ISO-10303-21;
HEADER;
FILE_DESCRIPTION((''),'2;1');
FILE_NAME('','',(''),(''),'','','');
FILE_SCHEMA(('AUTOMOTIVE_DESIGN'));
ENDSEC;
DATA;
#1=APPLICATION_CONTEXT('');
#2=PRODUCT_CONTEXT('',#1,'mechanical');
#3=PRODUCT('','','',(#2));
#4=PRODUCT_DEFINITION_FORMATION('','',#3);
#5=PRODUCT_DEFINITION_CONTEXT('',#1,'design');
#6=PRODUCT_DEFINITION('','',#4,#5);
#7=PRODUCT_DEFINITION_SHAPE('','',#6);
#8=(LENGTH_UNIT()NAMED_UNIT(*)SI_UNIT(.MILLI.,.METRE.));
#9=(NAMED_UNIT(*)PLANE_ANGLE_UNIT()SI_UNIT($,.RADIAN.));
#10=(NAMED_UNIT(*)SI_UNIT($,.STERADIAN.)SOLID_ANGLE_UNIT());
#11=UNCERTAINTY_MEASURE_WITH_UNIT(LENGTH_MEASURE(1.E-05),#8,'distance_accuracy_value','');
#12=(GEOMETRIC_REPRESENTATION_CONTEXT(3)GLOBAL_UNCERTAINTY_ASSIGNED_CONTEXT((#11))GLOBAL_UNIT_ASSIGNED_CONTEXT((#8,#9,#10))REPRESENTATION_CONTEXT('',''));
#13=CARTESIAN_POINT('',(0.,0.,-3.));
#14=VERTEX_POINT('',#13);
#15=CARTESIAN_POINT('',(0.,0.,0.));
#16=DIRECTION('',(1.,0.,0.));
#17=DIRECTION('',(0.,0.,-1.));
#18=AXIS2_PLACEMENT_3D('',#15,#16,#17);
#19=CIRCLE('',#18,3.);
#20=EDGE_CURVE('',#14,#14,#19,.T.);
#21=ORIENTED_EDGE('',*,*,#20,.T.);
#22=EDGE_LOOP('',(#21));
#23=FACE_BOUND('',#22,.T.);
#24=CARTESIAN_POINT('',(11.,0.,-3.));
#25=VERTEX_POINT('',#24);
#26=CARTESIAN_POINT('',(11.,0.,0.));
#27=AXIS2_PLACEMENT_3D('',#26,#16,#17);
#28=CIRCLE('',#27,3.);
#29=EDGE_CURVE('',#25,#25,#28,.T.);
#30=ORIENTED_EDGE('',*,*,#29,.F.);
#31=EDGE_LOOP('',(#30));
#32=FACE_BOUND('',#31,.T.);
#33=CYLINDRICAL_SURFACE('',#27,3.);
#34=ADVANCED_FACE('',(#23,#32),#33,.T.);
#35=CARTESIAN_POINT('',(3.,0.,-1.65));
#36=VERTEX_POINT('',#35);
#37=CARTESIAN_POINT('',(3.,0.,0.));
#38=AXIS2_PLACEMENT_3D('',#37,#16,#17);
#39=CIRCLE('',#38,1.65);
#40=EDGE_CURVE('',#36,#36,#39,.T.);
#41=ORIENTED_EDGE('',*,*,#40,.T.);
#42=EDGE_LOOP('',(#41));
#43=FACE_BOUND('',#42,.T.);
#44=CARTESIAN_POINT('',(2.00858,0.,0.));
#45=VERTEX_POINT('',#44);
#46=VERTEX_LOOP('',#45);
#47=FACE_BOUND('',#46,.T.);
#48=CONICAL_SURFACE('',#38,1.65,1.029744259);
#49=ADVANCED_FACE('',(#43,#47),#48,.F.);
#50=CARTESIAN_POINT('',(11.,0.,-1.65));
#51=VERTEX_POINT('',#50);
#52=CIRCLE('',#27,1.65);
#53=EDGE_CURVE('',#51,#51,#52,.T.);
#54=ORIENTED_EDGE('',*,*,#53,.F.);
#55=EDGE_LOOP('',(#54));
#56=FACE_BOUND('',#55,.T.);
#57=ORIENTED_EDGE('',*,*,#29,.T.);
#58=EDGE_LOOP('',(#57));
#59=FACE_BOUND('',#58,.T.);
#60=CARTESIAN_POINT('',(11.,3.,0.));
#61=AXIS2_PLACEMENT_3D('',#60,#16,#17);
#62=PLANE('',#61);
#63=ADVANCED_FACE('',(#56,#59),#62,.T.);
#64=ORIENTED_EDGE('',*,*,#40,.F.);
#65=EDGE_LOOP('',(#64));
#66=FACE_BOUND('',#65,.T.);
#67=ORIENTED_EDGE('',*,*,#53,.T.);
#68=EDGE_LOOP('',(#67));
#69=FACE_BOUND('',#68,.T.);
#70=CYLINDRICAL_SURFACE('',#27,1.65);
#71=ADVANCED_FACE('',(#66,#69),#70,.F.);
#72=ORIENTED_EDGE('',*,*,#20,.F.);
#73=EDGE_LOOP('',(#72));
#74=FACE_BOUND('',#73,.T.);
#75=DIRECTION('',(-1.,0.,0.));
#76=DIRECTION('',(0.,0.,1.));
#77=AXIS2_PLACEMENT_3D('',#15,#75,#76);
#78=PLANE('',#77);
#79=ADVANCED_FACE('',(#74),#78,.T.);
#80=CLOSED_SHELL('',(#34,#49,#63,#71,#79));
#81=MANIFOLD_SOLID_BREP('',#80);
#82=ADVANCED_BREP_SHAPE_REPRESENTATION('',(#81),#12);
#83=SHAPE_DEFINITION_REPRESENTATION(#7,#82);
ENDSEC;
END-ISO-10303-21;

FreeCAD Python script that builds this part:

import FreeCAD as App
import Part
import Sketcher
from FreeCAD import Vector
Q = App.Units.Quantity


def add_polygon(sketch, points):
    """Adds a closed chain of lines whose ends are joined by coincident constraints."""
    first, n = sketch.GeometryCount, len(points)
    for a, b in zip(points, points[1:] + points[:1]):
        sketch.addGeometry(Part.LineSegment(App.Vector(*a, 0), App.Vector(*b, 0)), False)
    for i in range(n):
        sketch.addConstraint(Sketcher.Constraint("Coincident", first + i, 2, first + (i + 1) % n, 1))

doc = App.newDocument("Part")
body = doc.addObject("PartDesign::Body", "Body")

# Sketch on XY plane
sketch1 = body.newObject("Sketcher::SketchObject", "Sketch")
sketch1.AttachmentSupport = (doc.getObject("XY_Plane"), [""])
sketch1.MapMode = "FlatFace"
add_polygon(sketch1, [(0, 3), (0, 0), (11, 0), (11, 3)])  # lines 0-3
sketch1.addConstraint([
    Sketcher.Constraint("Vertical", 0),
    Sketcher.Constraint("Horizontal", 1),
    Sketcher.Constraint("Vertical", 2),
    Sketcher.Constraint("Horizontal", 3),
    Sketcher.Constraint("Coincident", 0, 2, -1, 1),
    Sketcher.Constraint("DistanceX", 1, 1, 1, 2, Q("11 mm")),
    Sketcher.Constraint("DistanceY", 0, 2, 0, 1, Q("3 mm")),
])
revolution = body.newObject("PartDesign::Revolution", "Revolution")
revolution.Profile = sketch1
revolution.ReferenceAxis = (sketch1, ["H_Axis"])
revolution.Angle = 360

# Sketch on YZ plane
sketch2 = body.newObject("Sketcher::SketchObject", "Sketch001")
sketch2.AttachmentSupport = (doc.getObject("YZ_Plane"), [""])
sketch2.MapMode = "FlatFace"
sketch2.AttachmentOffset = App.Placement(Vector(0, 0, 11), App.Rotation())
sketch2.addGeometry(Part.Circle(Vector(0, 0, 0), Vector(0, 0, 1), 1.6), False)
sketch2.addConstraint([
    Sketcher.Constraint("Coincident", 0, 3, -1, 1),
    Sketcher.Constraint("Diameter", 0, Q("3.3 mm")),
])
doc.recompute()
hole = body.newObject("PartDesign::Hole", "Hole")
hole.Profile = sketch2
hole.ThreadType = "None"
hole.Diameter = 3.3
hole.DepthType = "Dimension"
hole.Depth = 8
hole.DrillPoint = "Angled"
hole.DrillPointAngle = 118

doc.recompute()
